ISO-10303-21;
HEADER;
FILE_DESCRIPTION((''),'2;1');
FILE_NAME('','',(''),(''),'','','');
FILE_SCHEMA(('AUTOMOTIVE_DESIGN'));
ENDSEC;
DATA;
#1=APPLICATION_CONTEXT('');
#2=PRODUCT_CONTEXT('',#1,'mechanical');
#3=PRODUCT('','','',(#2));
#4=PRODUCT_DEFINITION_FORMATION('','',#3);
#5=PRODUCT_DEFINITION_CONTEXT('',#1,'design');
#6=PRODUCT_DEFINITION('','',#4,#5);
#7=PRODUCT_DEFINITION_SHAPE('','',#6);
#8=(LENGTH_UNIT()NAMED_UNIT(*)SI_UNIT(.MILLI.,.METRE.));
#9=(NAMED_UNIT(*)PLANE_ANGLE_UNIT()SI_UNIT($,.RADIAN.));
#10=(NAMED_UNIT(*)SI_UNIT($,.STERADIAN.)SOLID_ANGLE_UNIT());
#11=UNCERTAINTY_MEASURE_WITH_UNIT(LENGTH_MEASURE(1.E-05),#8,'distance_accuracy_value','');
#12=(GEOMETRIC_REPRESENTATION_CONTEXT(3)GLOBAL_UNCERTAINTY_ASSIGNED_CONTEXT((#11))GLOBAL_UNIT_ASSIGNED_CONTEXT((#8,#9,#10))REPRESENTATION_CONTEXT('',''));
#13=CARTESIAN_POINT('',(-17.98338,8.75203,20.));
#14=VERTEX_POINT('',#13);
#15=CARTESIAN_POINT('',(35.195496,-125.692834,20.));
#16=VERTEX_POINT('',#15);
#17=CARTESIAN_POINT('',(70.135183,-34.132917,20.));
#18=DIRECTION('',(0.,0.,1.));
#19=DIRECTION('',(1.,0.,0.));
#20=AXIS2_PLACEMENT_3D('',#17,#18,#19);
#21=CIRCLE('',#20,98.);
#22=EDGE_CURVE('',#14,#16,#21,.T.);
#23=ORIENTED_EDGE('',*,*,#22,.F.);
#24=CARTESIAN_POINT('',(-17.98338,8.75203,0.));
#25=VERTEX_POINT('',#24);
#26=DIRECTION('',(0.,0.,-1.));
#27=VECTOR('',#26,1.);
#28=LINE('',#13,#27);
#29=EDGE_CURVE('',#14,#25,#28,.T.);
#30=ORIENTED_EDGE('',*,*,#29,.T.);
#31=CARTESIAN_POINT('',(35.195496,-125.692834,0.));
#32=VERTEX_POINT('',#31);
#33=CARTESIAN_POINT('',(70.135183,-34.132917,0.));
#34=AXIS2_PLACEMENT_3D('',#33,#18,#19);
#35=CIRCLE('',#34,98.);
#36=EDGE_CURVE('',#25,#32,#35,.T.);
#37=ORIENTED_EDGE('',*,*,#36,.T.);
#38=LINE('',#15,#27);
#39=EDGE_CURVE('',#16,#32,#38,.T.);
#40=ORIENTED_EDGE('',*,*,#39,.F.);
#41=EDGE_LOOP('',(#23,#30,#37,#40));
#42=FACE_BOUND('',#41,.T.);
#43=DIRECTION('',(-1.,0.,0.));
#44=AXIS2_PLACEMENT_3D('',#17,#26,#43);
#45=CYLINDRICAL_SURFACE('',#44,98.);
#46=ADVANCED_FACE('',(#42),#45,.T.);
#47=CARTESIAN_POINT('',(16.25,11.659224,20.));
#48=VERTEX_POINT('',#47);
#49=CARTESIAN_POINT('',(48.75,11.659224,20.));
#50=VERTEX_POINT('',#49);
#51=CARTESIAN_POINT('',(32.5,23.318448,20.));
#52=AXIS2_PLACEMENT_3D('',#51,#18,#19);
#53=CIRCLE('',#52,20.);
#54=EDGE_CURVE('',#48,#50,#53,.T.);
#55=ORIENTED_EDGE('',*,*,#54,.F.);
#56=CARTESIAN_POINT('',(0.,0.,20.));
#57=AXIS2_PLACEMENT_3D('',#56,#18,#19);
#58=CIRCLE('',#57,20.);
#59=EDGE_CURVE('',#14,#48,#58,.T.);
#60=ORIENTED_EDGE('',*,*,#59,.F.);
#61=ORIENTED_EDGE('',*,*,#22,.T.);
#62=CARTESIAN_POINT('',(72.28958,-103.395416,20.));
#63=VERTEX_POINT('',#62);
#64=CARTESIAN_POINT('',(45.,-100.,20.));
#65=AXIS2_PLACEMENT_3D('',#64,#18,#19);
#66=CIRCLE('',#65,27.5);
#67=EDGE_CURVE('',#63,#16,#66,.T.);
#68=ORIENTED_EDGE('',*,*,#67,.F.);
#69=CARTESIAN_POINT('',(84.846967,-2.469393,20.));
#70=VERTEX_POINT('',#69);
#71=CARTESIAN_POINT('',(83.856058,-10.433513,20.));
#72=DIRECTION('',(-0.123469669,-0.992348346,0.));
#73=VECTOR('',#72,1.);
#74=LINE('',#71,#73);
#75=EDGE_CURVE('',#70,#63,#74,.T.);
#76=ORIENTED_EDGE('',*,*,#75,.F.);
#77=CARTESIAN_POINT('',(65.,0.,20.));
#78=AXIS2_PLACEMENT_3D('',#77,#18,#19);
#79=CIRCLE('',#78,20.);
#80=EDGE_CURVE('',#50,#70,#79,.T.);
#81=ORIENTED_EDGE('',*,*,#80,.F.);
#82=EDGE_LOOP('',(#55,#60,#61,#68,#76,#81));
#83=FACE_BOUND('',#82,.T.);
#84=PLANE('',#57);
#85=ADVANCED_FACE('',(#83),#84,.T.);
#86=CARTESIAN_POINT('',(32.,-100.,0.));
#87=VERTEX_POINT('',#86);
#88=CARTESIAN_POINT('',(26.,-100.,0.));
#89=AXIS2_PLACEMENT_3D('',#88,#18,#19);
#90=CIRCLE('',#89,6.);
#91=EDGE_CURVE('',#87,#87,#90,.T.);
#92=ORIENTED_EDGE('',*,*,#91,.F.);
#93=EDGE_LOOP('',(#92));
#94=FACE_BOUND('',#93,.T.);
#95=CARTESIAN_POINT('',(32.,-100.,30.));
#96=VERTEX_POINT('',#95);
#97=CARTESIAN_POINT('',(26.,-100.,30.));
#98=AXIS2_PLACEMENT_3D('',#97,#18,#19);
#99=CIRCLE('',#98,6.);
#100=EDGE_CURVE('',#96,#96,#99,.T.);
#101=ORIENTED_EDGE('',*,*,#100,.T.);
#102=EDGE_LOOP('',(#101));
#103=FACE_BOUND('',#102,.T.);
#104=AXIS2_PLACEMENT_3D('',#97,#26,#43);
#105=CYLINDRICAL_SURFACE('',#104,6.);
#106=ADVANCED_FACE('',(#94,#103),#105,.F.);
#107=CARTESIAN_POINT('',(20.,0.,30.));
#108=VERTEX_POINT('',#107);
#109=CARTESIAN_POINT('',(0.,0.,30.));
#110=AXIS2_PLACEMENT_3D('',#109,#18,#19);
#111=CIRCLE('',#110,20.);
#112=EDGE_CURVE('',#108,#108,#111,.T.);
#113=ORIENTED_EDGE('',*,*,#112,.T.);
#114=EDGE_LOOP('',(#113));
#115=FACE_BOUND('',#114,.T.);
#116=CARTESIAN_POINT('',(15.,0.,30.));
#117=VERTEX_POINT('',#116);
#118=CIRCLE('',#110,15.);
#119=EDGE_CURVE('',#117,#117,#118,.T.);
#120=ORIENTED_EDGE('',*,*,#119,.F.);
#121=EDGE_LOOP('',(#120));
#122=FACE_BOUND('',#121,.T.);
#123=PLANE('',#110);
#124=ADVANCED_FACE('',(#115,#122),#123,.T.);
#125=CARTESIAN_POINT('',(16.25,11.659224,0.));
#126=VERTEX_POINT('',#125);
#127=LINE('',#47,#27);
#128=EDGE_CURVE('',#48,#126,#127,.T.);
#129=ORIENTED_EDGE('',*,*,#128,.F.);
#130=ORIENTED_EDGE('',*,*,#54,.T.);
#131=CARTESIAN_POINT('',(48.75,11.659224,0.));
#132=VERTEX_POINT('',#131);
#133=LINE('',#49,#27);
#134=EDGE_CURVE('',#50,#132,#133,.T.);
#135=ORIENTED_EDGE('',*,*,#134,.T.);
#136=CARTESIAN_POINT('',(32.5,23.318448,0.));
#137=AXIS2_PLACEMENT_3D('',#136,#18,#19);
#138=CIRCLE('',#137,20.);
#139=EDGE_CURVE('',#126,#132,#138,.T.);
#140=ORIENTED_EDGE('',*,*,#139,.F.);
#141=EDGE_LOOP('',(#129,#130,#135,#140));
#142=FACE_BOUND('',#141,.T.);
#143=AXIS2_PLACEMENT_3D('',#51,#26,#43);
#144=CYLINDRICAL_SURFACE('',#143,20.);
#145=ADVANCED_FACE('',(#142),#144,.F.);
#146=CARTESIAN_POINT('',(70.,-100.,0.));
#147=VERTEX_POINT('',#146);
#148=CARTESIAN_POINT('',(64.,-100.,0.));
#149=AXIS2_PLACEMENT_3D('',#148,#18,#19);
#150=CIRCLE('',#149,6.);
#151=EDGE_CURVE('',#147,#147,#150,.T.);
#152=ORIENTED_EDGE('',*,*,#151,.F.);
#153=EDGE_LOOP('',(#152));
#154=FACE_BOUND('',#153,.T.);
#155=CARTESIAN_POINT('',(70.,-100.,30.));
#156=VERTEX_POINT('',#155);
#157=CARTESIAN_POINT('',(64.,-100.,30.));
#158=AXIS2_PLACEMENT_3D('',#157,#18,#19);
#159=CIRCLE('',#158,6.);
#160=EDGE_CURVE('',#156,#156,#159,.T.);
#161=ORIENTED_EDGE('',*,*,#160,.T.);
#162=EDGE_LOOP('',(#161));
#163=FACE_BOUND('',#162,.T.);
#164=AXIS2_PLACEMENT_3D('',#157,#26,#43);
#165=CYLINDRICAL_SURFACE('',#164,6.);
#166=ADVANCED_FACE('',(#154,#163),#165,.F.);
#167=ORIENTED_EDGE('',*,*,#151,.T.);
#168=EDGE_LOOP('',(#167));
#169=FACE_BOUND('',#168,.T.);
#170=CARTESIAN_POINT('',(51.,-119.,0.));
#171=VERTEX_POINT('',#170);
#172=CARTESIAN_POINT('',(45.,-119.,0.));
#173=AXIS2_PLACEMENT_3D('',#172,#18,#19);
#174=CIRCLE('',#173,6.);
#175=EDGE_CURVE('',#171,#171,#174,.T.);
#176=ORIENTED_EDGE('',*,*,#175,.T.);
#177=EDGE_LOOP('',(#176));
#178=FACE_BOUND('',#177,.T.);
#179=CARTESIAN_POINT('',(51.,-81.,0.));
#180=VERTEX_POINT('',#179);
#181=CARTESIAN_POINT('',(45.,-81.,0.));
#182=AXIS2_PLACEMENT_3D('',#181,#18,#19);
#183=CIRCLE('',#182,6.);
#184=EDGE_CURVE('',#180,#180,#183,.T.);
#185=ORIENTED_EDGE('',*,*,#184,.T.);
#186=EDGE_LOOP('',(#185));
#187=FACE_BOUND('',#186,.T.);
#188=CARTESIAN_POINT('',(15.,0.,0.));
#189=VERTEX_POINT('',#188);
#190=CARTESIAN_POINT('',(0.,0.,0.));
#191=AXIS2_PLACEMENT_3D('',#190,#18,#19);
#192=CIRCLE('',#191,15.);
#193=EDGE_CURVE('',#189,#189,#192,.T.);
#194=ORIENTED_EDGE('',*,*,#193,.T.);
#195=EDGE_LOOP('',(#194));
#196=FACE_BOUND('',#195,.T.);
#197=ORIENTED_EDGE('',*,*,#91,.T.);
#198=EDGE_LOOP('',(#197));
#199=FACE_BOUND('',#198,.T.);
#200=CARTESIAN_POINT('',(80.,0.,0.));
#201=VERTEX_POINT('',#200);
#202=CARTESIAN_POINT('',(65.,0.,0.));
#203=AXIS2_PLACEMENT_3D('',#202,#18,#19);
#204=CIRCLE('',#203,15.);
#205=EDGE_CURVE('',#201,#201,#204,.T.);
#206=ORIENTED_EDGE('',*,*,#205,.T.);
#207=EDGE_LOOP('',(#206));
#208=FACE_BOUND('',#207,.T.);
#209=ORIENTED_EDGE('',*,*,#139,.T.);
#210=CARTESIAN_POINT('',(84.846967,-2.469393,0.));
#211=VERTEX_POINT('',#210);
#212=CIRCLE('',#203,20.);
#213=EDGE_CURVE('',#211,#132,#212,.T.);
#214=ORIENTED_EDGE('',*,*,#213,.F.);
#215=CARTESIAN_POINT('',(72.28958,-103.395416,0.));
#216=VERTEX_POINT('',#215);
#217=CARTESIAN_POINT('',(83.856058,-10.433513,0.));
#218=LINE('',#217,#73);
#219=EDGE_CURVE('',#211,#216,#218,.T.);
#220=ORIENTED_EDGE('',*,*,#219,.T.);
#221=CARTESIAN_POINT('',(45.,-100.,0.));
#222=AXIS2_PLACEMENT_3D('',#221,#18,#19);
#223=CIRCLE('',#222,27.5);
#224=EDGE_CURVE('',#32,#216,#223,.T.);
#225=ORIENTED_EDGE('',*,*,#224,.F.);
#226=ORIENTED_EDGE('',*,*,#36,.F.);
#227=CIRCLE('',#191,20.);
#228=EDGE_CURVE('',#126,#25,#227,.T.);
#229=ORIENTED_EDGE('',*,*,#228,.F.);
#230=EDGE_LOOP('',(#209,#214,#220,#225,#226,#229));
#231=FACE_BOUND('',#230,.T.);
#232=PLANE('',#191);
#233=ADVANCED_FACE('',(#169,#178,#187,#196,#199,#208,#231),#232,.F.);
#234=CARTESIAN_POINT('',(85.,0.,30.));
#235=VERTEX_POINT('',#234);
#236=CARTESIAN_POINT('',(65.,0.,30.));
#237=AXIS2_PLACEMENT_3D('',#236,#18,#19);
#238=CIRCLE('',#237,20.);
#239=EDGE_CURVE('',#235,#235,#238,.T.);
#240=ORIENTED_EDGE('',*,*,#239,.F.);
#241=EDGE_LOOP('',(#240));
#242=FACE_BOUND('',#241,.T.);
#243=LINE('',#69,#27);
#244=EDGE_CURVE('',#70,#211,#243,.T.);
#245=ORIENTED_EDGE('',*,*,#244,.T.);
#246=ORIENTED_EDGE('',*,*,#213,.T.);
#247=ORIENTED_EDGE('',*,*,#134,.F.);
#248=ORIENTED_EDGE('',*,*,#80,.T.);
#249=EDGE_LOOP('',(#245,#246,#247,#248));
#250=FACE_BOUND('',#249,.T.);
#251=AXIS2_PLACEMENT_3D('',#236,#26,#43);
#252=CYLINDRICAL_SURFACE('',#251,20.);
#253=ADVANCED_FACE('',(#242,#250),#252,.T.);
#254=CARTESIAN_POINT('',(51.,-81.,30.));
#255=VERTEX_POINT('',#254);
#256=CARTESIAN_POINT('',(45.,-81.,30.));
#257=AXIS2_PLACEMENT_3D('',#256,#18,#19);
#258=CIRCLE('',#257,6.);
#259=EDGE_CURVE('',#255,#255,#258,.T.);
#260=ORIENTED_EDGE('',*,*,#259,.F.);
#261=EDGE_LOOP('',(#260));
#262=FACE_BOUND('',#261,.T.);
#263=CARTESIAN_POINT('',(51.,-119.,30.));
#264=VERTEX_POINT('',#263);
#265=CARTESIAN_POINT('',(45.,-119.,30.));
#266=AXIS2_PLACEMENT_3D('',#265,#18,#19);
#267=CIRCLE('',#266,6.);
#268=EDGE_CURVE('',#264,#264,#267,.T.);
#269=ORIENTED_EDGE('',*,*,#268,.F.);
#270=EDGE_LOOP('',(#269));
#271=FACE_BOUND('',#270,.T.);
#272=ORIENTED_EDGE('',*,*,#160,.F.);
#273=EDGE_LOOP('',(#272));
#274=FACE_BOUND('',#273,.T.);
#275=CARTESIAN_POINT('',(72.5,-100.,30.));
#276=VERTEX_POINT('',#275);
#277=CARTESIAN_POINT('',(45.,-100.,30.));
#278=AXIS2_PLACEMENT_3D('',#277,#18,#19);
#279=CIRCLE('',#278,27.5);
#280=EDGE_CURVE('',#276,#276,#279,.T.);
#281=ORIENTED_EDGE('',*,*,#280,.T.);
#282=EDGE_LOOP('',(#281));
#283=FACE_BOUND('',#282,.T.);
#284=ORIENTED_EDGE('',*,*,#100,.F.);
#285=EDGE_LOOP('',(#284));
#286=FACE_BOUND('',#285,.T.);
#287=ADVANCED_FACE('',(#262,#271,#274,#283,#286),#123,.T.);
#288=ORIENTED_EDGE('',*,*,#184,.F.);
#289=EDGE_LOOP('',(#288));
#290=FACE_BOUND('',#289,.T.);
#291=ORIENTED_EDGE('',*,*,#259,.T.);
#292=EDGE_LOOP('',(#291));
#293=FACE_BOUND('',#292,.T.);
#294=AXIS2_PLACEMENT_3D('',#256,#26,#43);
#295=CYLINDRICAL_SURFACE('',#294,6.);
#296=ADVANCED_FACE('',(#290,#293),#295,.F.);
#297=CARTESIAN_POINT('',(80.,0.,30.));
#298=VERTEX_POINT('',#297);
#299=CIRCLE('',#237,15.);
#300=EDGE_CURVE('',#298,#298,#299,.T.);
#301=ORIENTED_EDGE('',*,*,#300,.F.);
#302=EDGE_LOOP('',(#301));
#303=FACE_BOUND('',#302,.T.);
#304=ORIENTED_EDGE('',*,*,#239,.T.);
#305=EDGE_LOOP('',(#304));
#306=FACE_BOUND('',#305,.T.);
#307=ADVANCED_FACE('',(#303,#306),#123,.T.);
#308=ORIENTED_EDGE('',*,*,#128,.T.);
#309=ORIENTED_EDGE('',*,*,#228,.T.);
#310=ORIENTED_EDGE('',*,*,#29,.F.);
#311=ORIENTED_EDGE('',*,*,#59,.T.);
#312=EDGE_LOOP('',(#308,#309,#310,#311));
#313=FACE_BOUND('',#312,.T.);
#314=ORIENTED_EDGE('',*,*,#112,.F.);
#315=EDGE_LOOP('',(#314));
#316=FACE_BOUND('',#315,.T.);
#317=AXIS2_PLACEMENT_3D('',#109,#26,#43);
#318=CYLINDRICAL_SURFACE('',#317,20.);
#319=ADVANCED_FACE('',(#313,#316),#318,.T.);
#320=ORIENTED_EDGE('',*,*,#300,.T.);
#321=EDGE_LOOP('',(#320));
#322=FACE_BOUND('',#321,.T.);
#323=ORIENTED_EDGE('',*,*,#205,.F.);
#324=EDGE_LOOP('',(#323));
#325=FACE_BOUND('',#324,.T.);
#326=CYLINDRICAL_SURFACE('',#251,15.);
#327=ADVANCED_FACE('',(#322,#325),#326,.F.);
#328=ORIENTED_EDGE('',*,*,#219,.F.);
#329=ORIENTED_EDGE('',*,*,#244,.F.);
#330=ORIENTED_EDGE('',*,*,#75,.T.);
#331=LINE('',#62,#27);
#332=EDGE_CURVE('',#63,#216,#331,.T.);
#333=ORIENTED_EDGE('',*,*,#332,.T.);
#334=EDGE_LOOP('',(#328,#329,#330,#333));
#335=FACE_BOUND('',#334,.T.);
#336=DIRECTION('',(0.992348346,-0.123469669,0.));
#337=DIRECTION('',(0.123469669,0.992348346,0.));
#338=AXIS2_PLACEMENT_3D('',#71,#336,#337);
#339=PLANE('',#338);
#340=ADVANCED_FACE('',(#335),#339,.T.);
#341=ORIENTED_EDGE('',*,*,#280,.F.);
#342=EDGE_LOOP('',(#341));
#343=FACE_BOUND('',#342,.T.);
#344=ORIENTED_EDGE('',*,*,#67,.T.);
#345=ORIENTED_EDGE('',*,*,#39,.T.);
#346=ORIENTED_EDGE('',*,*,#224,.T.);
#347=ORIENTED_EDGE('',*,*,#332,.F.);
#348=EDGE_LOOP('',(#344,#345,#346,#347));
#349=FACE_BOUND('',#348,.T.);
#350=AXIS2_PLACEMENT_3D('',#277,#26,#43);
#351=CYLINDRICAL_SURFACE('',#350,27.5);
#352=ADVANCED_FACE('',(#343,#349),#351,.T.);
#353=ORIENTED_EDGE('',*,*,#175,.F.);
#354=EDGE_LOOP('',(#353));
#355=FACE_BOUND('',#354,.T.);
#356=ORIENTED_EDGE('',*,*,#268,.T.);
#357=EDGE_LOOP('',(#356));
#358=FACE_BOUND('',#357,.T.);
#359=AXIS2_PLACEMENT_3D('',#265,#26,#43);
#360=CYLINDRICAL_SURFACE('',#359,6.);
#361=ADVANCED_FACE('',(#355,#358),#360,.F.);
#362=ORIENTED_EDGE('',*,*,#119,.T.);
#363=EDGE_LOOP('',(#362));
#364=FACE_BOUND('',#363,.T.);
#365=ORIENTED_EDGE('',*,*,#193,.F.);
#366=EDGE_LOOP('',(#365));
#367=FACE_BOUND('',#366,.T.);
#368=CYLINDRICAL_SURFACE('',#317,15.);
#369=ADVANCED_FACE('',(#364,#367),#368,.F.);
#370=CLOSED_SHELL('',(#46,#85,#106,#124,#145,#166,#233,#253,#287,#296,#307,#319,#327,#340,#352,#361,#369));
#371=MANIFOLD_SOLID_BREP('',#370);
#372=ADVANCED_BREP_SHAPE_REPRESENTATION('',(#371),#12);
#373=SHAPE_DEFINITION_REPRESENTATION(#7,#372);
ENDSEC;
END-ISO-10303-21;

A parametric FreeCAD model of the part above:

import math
import FreeCAD as App
import Part
import Sketcher
from FreeCAD import Vector

doc = App.newDocument("Part")
body = doc.addObject("PartDesign::Body", "Body")

sketch1 = doc.addObject("Sketcher::SketchObject", "Sketch")
body.addObject(sketch1)
sketch1.AttachmentSupport = (doc.XY_Plane, [""])
sketch1.MapMode = "FlatFace"
sketch1.addGeometry([
    Part.LineSegment(Vector(72.3, -103.4, 0), Vector(84.8, -2.5, 0)),
    Part.ArcOfCircle(Part.Circle(Vector(65, 0, 0), Vector(0, 0, 1), 20), math.radians(144), math.radians(353)),
    Part.ArcOfCircle(Part.Circle(Vector(32.5, 23.3, 0), Vector(0, 0, 1), 20), math.radians(-144), math.radians(-36)),
    Part.ArcOfCircle(Part.Circle(Vector(0, 0, 0), Vector(0, 0, 1), 20), math.radians(0), math.radians(36)),
    Part.ArcOfCircle(Part.Circle(Vector(0, 0, 0), Vector(0, 0, 1), 20), math.radians(154), math.radians(360)),
    Part.ArcOfCircle(Part.Circle(Vector(70.1, -34.1, 0), Vector(0, 0, 1), 98), math.radians(154), math.radians(249)),
    Part.ArcOfCircle(Part.Circle(Vector(45, -100, 0), Vector(0, 0, 1), 27.5), math.radians(0), math.radians(249)),
    Part.ArcOfCircle(Part.Circle(Vector(45, -100, 0), Vector(0, 0, 1), 27.5), math.radians(-7.09), math.radians(0)),
], False)
sketch1.addConstraint([
    Sketcher.Constraint("Tangent", 0, 2, 1, 2),
    Sketcher.Constraint("Tangent", 1, 1, 2, 2),
    Sketcher.Constraint("Tangent", 2, 1, 3, 2),
    Sketcher.Constraint("Tangent", 3, 1, 4, 2),
    Sketcher.Constraint("Tangent", 4, 1, 5, 1),
    Sketcher.Constraint("Tangent", 5, 2, 6, 2),
    Sketcher.Constraint("Tangent", 6, 1, 7, 2),
    Sketcher.Constraint("Tangent", 7, 1, 0, 1),
    Sketcher.Constraint("Coincident", 3, 3, -1, 1),
    Sketcher.Constraint("Equal", 1, 2),
    Sketcher.Constraint("Equal", 2, 3),
    Sketcher.Constraint("Equal", 3, 4),
    Sketcher.Constraint("Equal", 6, 7),
    Sketcher.Constraint("PointOnObject", 1, 3, -1),
    Sketcher.Constraint("PointOnObject", 3, 1, -1),
    Sketcher.Constraint("Horizontal", 7, 3, 6, 1),
    Sketcher.Constraint("Radius", 1, 20.0),
    Sketcher.Constraint("Radius", 5, 98.0),
    Sketcher.Constraint("Radius", 6, 27.5),
    Sketcher.Constraint("DistanceX", -1, 1, 1, 3, 65.0),
    Sketcher.Constraint("DistanceX", -1, 1, 6, 3, 45.0),
    Sketcher.Constraint("DistanceY", 6, 3, -1, 1, 100.0),
])
pad1 = doc.addObject("PartDesign::Pad", "Pad")
body.addObject(pad1)
pad1.Profile = sketch1
pad1.Length = 20

sketch2 = doc.addObject("Sketcher::SketchObject", "Sketch001")
body.addObject(sketch2)
sketch2.AttachmentSupport = (doc.XY_Plane, [""])
sketch2.MapMode = "FlatFace"
sketch2.addGeometry([
    Part.Circle(Vector(0, 0, 0), Vector(0, 0, 1), 20),
    Part.Circle(Vector(0, 0, 0), Vector(0, 0, 1), 15),
    Part.Circle(Vector(65, 0, 0), Vector(0, 0, 1), 20),
    Part.Circle(Vector(65, 0, 0), Vector(0, 0, 1), 15),
    Part.Circle(Vector(45, -100, 0), Vector(0, 0, 1), 28),
    Part.Circle(Vector(45, -81, 0), Vector(0, 0, 1), 6),
    Part.Circle(Vector(26, -100, 0), Vector(0, 0, 1), 6),
    Part.Circle(Vector(64, -100, 0), Vector(0, 0, 1), 6),
    Part.Circle(Vector(45, -119, 0), Vector(0, 0, 1), 6),
], False)
sketch2.addConstraint([
    Sketcher.Constraint("Coincident", 0, 3, -1, 1),
    Sketcher.Constraint("Coincident", 1, 3, -1, 1),
    Sketcher.Constraint("Coincident", 3, 3, 2, 3),
    Sketcher.Constraint("Equal", 0, 2),
    Sketcher.Constraint("Equal", 1, 3),
    Sketcher.Constraint("Equal", 5, 6),
    Sketcher.Constraint("Equal", 6, 7),
    Sketcher.Constraint("Equal", 7, 8),
    Sketcher.Constraint("PointOnObject", 2, 3, -1),
    Sketcher.Constraint("Horizontal", 4, 3, 6, 3),
    Sketcher.Constraint("Horizontal", 6, 3, 7, 3),
    Sketcher.Constraint("Vertical", 4, 3, 5, 3),
    Sketcher.Constraint("Vertical", 5, 3, 8, 3),
    Sketcher.Constraint("Diameter", 0, 40.0),
    Sketcher.Constraint("Diameter", 1, 30.0),
    Sketcher.Constraint("Diameter", 4, 55.0),
    Sketcher.Constraint("Diameter", 5, 12.0),
    Sketcher.Constraint("DistanceX", -1, 1, 2, 3, 65.0),
    Sketcher.Constraint("DistanceX", -1, 1, 4, 3, 45.0),
    Sketcher.Constraint("DistanceY", 4, 3, -1, 1, 100.0),
    Sketcher.Constraint("DistanceY", 5, 3, -1, 1, 81.0),
    Sketcher.Constraint("DistanceX", -1, 1, 6, 3, 26.0),
    Sketcher.Constraint("DistanceX", -1, 1, 7, 3, 64.0),
    Sketcher.Constraint("DistanceY", 8, 3, -1, 1, 119.0),
])
pad2 = doc.addObject("PartDesign::Pad", "Pad001")
body.addObject(pad2)
pad2.Profile = sketch2
pad2.Length = 30

doc.recompute()
